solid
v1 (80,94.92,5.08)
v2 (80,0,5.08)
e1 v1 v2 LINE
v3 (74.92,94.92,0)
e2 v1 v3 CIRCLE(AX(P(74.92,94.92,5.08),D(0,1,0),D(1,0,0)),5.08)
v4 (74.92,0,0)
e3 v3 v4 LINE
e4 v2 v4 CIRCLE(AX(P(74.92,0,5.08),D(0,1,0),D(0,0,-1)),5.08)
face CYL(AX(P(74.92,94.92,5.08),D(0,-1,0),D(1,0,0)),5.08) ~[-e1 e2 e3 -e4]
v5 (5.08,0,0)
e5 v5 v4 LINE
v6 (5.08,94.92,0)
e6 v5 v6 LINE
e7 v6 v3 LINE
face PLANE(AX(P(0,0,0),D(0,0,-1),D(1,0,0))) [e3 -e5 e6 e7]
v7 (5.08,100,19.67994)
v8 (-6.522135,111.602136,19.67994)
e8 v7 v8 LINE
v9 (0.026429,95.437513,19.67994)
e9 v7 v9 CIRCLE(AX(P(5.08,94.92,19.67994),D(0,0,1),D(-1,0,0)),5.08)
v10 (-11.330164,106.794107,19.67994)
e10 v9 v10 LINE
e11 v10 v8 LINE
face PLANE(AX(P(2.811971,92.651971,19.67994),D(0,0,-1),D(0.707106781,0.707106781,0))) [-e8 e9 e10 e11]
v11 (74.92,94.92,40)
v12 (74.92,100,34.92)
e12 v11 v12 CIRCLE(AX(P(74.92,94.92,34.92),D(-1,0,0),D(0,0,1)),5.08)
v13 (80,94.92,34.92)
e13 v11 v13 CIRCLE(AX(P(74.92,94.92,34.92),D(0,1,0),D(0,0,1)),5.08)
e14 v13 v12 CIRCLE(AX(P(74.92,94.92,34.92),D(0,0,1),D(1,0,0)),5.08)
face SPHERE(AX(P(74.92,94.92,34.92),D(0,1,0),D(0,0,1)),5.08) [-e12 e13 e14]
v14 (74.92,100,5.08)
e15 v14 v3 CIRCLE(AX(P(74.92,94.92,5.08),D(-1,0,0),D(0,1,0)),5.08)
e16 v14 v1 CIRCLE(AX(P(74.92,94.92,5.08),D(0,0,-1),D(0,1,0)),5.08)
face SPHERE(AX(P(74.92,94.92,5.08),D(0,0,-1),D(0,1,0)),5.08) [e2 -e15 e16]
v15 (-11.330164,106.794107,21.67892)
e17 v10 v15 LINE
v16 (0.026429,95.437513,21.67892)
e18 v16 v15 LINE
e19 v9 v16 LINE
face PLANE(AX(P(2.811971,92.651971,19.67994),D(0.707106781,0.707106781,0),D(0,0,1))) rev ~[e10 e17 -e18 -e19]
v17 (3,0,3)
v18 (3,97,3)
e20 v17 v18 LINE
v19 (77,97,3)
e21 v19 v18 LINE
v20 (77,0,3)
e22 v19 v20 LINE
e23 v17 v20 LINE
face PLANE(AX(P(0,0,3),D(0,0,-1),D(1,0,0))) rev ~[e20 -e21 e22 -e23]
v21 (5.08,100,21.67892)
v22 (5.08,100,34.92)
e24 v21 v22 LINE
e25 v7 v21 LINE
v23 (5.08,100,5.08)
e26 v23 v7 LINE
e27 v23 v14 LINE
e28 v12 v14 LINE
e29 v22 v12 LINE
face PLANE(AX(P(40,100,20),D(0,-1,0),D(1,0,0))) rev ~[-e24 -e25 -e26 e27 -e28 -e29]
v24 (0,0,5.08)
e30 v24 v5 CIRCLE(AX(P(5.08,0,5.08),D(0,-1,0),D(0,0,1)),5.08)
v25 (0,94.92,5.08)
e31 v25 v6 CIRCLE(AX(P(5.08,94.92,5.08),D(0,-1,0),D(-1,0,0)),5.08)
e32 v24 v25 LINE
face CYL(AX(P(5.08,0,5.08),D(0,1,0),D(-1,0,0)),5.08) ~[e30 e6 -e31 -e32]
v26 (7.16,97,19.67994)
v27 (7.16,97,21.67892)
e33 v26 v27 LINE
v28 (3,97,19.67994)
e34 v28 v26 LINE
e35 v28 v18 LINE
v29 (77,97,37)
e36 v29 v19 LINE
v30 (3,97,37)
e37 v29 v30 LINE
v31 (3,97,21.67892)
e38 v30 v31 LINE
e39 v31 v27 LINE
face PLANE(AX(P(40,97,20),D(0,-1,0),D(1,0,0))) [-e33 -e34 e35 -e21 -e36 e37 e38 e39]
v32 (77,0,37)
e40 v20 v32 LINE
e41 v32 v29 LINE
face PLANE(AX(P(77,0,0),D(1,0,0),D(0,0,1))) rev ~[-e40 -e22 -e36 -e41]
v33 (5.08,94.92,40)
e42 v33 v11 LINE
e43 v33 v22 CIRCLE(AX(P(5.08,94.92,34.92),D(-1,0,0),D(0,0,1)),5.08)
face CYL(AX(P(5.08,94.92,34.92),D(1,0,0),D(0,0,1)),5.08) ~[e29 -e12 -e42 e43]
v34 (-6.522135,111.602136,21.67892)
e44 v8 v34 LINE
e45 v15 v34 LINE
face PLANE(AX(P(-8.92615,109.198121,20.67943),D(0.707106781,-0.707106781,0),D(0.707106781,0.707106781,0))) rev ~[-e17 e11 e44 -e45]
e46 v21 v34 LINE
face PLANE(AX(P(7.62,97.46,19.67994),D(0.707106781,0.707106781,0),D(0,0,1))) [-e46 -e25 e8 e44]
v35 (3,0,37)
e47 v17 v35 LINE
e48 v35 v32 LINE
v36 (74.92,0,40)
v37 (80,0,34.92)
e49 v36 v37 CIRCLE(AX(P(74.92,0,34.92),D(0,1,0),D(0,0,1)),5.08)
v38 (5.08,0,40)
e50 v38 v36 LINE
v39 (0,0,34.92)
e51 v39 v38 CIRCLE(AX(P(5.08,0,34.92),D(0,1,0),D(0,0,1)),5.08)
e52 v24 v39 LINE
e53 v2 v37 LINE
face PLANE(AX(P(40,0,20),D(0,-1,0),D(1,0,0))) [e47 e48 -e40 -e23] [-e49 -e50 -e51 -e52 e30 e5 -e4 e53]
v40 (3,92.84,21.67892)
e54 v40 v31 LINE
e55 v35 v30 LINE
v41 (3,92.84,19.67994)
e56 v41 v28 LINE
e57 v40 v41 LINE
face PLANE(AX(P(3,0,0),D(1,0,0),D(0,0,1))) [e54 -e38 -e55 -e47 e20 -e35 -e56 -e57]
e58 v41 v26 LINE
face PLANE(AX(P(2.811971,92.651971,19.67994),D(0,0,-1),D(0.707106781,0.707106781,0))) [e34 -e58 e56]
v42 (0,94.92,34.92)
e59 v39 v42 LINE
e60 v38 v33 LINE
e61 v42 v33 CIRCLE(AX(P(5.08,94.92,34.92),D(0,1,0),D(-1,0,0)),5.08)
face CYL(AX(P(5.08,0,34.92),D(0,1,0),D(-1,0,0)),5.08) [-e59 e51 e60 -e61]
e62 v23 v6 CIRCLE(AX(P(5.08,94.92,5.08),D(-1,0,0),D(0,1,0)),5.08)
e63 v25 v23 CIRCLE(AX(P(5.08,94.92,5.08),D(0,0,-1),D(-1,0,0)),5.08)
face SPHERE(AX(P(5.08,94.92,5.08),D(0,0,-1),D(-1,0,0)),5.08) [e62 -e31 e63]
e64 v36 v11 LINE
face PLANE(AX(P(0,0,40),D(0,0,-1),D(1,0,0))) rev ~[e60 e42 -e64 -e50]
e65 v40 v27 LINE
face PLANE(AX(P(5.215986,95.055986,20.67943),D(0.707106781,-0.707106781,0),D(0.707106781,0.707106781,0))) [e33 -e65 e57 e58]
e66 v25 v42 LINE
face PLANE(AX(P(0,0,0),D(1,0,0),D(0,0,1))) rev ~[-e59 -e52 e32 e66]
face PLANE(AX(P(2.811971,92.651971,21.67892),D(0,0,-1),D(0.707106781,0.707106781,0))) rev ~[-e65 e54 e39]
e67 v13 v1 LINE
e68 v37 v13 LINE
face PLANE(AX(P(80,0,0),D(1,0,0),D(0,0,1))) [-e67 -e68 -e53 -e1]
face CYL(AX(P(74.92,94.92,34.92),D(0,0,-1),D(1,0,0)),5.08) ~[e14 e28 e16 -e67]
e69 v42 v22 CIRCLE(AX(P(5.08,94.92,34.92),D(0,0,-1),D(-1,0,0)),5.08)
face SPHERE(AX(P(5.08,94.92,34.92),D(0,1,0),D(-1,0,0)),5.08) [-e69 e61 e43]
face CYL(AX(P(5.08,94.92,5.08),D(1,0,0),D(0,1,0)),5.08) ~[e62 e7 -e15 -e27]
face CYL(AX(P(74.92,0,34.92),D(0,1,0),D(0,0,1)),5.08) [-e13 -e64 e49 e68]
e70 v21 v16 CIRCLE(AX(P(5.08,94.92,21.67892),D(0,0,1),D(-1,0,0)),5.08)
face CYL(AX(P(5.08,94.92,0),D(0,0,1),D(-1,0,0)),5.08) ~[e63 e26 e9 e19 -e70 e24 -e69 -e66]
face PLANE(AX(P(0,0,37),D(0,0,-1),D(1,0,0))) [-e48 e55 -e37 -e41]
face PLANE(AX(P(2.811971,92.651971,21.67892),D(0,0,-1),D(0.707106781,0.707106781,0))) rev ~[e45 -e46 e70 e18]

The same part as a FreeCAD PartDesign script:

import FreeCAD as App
import Part
import Sketcher
from FreeCAD import Vector


def edges_at(feature, points):
    """Names of the edges that pass closest to the given points."""
    edges = feature.Shape.Edges
    near = lambda p: min(range(len(edges)), key=lambda i: edges[i].distToShape(Part.Vertex(*p))[0])
    return sorted({f"Edge{near(p) + 1}" for p in points})


def faces_at(feature, points):
    """Names of the faces that lie closest to the given points."""
    faces = feature.Shape.Faces
    near = lambda p: min(range(len(faces)), key=lambda i: faces[i].distToShape(Part.Vertex(*p))[0])
    return sorted({f"Face{near(p) + 1}" for p in points})

doc = App.newDocument("Part")
body = doc.addObject("PartDesign::Body", "Body")

# Sketch on XZ plane
sketch1 = body.newObject("Sketcher::SketchObject", "Sketch")
sketch1.AttachmentSupport = (doc.getObject("XZ_Plane"), [""])
sketch1.MapMode = "FlatFace"
sketch1.addGeometry(Part.LineSegment(Vector(0, 40, 0), Vector(0, 0, 0)), False)
sketch1.addGeometry(Part.LineSegment(Vector(0, 0, 0), Vector(80, 0, 0)), False)
sketch1.addGeometry(Part.LineSegment(Vector(80, 0, 0), Vector(80, 40, 0)), False)
sketch1.addGeometry(Part.LineSegment(Vector(80, 40, 0), Vector(0, 40, 0)), False)
sketch1.addConstraint(Sketcher.Constraint("Coincident", 0, 2, 1, 1))
sketch1.addConstraint(Sketcher.Constraint("Coincident", 1, 2, 2, 1))
sketch1.addConstraint(Sketcher.Constraint("Coincident", 2, 2, 3, 1))
sketch1.addConstraint(Sketcher.Constraint("Coincident", 3, 2, 0, 1))
sketch1.addConstraint(Sketcher.Constraint("Vertical", 0))
sketch1.addConstraint(Sketcher.Constraint("Horizontal", 1))
sketch1.addConstraint(Sketcher.Constraint("Vertical", 2))
sketch1.addConstraint(Sketcher.Constraint("Horizontal", 3))
sketch1.addConstraint(Sketcher.Constraint("Coincident", 0, 2, -1, 1))
sketch1.addConstraint(Sketcher.Constraint("DistanceX", 1, 1, 1, 2, 80.0))
sketch1.addConstraint(Sketcher.Constraint("DistanceY", 0, 2, 0, 1, 40.0))
pad1 = body.newObject("PartDesign::Pad", "Pad")
pad1.Profile = sketch1
pad1.Length = 100
pad1.Reversed = True
doc.recompute()

thickness = body.newObject("PartDesign::Thickness", "Thickness")
thickness.Base = (pad1, faces_at(pad1, [(40, 0, 20)]))
thickness.Value = 3
thickness.Reversed = True
thickness.Join = "Arc"
doc.recompute()

fillet = body.newObject("PartDesign::Fillet", "Fillet")
fillet.Base = (thickness, edges_at(thickness, [(0, 50, 40)]))
fillet.Radius = 5.08
doc.recompute()

fillet2 = body.newObject("PartDesign::Fillet", "Fillet001")
fillet2.Base = (fillet, edges_at(fillet, [(80, 50, 40)]))
fillet2.Radius = 5.08
doc.recompute()

fillet3 = body.newObject("PartDesign::Fillet", "Fillet002")
fillet3.Base = (fillet2, edges_at(fillet2, [(40, 100, 40)]))
fillet3.Radius = 5.08
doc.recompute()

fillet4 = body.newObject("PartDesign::Fillet", "Fillet003")
fillet4.Base = (fillet3, edges_at(fillet3, [(40, 100, 0)]))
fillet4.Radius = 5.08

# Sketch on an angled plane
sketch2 = body.newObject("Sketcher::SketchObject", "Sketch001")
sketch2.Placement = App.Placement(Vector(-44.92, 44.92, 0), App.Rotation(Vector(0.707106781, 0.707106781, 0), Vector(0, 0, 0.999999999), Vector(0.707106781, -0.707106781, 0), "ZXY"))
sketch2.addGeometry(Part.LineSegment(Vector(67.503201, 21.67892, 0), Vector(67.503201, 19.67994, 0)), False)
sketch2.addGeometry(Part.LineSegment(Vector(67.503201, 19.67994, 0), Vector(74.302781, 19.67994, 0)), False)
sketch2.addGeometry(Part.LineSegment(Vector(74.302781, 19.67994, 0), Vector(74.302781, 21.67892, 0)), False)
sketch2.addGeometry(Part.LineSegment(Vector(74.302781, 21.67892, 0), Vector(67.503201, 21.67892, 0)), False)
sketch2.addConstraint(Sketcher.Constraint("Coincident", 0, 2, 1, 1))
sketch2.addConstraint(Sketcher.Constraint("Coincident", 1, 2, 2, 1))
sketch2.addConstraint(Sketcher.Constraint("Coincident", 2, 2, 3, 1))
sketch2.addConstraint(Sketcher.Constraint("Coincident", 3, 2, 0, 1))
sketch2.addConstraint(Sketcher.Constraint("Vertical", 0))
sketch2.addConstraint(Sketcher.Constraint("Horizontal", 1))
sketch2.addConstraint(Sketcher.Constraint("Vertical", 2))
sketch2.addConstraint(Sketcher.Constraint("Horizontal", 3))
sketch2.addConstraint(Sketcher.Constraint("DistanceX", 1, 1, 1, 2, 6.79958))
sketch2.addConstraint(Sketcher.Constraint("DistanceY", 0, 2, 0, 1, 1.99898))
sketch2.addConstraint(Sketcher.Constraint("DistanceX", -1, 1, 0, 2, 67.503201))
sketch2.addConstraint(Sketcher.Constraint("DistanceY", -1, 1, 0, 2, 19.67994))
pad2 = body.newObject("PartDesign::Pad", "Pad001")
pad2.Profile = sketch2
pad2.Length = 20
pad2.Reversed = True

doc.recompute()
